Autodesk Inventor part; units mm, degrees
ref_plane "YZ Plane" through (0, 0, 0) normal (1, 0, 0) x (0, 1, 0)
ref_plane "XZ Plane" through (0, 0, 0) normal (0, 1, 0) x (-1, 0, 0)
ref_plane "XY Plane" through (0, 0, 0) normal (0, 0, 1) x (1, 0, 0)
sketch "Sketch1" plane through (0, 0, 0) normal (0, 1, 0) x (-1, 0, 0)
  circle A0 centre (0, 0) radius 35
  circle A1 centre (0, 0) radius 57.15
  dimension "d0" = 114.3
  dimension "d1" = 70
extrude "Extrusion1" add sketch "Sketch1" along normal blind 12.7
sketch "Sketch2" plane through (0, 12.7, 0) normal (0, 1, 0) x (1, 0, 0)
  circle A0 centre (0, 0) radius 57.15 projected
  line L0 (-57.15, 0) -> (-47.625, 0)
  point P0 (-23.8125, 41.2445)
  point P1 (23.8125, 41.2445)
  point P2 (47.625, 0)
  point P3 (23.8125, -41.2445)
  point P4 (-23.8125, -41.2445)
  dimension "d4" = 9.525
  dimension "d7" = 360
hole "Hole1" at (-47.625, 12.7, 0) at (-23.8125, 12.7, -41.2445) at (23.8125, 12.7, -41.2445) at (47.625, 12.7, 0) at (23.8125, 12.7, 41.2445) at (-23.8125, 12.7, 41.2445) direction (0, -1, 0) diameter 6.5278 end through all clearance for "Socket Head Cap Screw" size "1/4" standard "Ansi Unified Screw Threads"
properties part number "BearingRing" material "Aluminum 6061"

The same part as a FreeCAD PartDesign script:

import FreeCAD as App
import Part
import Sketcher
from FreeCAD import Vector
Q = App.Units.Quantity

doc = App.newDocument("Part")
body = doc.addObject("PartDesign::Body", "Body")

# Sketch on XZ plane
sketch1 = doc.addObject("Sketcher::SketchObject", "Sketch")
body.addObject(sketch1)
sketch1.AttachmentSupport = (doc.XZ_Plane, [""])
sketch1.MapMode = "FlatFace"
sketch1.addGeometry([
    Part.Circle(Vector(0, 0, 0), Vector(0, 0, 1), 57.15),
    Part.Circle(Vector(0, 0, 0), Vector(0, 0, 1), 35),
], False)
sketch1.addConstraint([
    Sketcher.Constraint("Coincident", 0, 3, -1, 1),
    Sketcher.Constraint("Coincident", 1, 3, -1, 1),
    Sketcher.Constraint("Diameter", 0, Q("4.5 in")),
    Sketcher.Constraint("Diameter", 1, Q("2.7559 in")),
])
pad1 = doc.addObject("PartDesign::Pad", "Pad")
body.addObject(pad1)
pad1.Profile = sketch1
pad1.Length = Q("0.5 in")
pad1.Reversed = True

# Sketch on XZ plane
sketch2 = doc.addObject("Sketcher::SketchObject", "Sketch001")
body.addObject(sketch2)
sketch2.AttachmentSupport = (doc.XZ_Plane, [""])
sketch2.MapMode = "FlatFace"
sketch2.AttachmentOffset = App.Placement(Vector(0, 0, -0.5 * 25.4), App.Rotation())
sketch2.addGeometry([
    Part.Circle(Vector(-47.625, 0, 0), Vector(0, 0, 1), 3.2639),  # 0
    Part.Circle(Vector(-23.8125, -41.2445, 0), Vector(0, 0, 1), 3.2639),  # 1
    Part.Circle(Vector(23.8125, -41.2445, 0), Vector(0, 0, 1), 3.2639),  # 2
    Part.Circle(Vector(47.625, 0, 0), Vector(0, 0, 1), 3.2639),  # 3
    Part.Circle(Vector(23.8125, 41.2445, 0), Vector(0, 0, 1), 3.2639),  # 4
    Part.Circle(Vector(-23.8125, 41.2445, 0), Vector(0, 0, 1), 3.2639),  # 5
], False)
sketch2.addConstraint([
    Sketcher.Constraint("Equal", 0, 1),
    Sketcher.Constraint("Equal", 1, 2),
    Sketcher.Constraint("Equal", 2, 3),
    Sketcher.Constraint("Equal", 3, 4),
    Sketcher.Constraint("Equal", 4, 5),
    Sketcher.Constraint("Symmetric", 0, 3, 3, 3, -1, 1),
    Sketcher.Constraint("Symmetric", 1, 3, 4, 3, -1, 1),
    Sketcher.Constraint("Symmetric", 2, 3, 5, 3, -1, 1),
    Sketcher.Constraint("Symmetric", 1, 3, 2, 3, -2),
    Sketcher.Constraint("PointOnObject", 0, 3, -1),
    Sketcher.Constraint("Diameter", 0, Q("0.257 in")),
    Sketcher.Constraint("DistanceX", 0, 3, 3, 3, Q("3.75 in")),
    Sketcher.Constraint("DistanceX", 1, 3, -1, 1, Q("0.9375 in")),
    Sketcher.Constraint("DistanceY", 1, 3, -1, 1, Q("1.6238 in")),
])
doc.recompute()
hole = doc.addObject("PartDesign::Hole", "Hole")
body.addObject(hole)
hole.Profile = sketch2
hole.ThreadType = "None"
hole.Diameter = Q("0.257 in")
hole.DepthType = "ThroughAll"
hole.Reversed = True

doc.recompute()
